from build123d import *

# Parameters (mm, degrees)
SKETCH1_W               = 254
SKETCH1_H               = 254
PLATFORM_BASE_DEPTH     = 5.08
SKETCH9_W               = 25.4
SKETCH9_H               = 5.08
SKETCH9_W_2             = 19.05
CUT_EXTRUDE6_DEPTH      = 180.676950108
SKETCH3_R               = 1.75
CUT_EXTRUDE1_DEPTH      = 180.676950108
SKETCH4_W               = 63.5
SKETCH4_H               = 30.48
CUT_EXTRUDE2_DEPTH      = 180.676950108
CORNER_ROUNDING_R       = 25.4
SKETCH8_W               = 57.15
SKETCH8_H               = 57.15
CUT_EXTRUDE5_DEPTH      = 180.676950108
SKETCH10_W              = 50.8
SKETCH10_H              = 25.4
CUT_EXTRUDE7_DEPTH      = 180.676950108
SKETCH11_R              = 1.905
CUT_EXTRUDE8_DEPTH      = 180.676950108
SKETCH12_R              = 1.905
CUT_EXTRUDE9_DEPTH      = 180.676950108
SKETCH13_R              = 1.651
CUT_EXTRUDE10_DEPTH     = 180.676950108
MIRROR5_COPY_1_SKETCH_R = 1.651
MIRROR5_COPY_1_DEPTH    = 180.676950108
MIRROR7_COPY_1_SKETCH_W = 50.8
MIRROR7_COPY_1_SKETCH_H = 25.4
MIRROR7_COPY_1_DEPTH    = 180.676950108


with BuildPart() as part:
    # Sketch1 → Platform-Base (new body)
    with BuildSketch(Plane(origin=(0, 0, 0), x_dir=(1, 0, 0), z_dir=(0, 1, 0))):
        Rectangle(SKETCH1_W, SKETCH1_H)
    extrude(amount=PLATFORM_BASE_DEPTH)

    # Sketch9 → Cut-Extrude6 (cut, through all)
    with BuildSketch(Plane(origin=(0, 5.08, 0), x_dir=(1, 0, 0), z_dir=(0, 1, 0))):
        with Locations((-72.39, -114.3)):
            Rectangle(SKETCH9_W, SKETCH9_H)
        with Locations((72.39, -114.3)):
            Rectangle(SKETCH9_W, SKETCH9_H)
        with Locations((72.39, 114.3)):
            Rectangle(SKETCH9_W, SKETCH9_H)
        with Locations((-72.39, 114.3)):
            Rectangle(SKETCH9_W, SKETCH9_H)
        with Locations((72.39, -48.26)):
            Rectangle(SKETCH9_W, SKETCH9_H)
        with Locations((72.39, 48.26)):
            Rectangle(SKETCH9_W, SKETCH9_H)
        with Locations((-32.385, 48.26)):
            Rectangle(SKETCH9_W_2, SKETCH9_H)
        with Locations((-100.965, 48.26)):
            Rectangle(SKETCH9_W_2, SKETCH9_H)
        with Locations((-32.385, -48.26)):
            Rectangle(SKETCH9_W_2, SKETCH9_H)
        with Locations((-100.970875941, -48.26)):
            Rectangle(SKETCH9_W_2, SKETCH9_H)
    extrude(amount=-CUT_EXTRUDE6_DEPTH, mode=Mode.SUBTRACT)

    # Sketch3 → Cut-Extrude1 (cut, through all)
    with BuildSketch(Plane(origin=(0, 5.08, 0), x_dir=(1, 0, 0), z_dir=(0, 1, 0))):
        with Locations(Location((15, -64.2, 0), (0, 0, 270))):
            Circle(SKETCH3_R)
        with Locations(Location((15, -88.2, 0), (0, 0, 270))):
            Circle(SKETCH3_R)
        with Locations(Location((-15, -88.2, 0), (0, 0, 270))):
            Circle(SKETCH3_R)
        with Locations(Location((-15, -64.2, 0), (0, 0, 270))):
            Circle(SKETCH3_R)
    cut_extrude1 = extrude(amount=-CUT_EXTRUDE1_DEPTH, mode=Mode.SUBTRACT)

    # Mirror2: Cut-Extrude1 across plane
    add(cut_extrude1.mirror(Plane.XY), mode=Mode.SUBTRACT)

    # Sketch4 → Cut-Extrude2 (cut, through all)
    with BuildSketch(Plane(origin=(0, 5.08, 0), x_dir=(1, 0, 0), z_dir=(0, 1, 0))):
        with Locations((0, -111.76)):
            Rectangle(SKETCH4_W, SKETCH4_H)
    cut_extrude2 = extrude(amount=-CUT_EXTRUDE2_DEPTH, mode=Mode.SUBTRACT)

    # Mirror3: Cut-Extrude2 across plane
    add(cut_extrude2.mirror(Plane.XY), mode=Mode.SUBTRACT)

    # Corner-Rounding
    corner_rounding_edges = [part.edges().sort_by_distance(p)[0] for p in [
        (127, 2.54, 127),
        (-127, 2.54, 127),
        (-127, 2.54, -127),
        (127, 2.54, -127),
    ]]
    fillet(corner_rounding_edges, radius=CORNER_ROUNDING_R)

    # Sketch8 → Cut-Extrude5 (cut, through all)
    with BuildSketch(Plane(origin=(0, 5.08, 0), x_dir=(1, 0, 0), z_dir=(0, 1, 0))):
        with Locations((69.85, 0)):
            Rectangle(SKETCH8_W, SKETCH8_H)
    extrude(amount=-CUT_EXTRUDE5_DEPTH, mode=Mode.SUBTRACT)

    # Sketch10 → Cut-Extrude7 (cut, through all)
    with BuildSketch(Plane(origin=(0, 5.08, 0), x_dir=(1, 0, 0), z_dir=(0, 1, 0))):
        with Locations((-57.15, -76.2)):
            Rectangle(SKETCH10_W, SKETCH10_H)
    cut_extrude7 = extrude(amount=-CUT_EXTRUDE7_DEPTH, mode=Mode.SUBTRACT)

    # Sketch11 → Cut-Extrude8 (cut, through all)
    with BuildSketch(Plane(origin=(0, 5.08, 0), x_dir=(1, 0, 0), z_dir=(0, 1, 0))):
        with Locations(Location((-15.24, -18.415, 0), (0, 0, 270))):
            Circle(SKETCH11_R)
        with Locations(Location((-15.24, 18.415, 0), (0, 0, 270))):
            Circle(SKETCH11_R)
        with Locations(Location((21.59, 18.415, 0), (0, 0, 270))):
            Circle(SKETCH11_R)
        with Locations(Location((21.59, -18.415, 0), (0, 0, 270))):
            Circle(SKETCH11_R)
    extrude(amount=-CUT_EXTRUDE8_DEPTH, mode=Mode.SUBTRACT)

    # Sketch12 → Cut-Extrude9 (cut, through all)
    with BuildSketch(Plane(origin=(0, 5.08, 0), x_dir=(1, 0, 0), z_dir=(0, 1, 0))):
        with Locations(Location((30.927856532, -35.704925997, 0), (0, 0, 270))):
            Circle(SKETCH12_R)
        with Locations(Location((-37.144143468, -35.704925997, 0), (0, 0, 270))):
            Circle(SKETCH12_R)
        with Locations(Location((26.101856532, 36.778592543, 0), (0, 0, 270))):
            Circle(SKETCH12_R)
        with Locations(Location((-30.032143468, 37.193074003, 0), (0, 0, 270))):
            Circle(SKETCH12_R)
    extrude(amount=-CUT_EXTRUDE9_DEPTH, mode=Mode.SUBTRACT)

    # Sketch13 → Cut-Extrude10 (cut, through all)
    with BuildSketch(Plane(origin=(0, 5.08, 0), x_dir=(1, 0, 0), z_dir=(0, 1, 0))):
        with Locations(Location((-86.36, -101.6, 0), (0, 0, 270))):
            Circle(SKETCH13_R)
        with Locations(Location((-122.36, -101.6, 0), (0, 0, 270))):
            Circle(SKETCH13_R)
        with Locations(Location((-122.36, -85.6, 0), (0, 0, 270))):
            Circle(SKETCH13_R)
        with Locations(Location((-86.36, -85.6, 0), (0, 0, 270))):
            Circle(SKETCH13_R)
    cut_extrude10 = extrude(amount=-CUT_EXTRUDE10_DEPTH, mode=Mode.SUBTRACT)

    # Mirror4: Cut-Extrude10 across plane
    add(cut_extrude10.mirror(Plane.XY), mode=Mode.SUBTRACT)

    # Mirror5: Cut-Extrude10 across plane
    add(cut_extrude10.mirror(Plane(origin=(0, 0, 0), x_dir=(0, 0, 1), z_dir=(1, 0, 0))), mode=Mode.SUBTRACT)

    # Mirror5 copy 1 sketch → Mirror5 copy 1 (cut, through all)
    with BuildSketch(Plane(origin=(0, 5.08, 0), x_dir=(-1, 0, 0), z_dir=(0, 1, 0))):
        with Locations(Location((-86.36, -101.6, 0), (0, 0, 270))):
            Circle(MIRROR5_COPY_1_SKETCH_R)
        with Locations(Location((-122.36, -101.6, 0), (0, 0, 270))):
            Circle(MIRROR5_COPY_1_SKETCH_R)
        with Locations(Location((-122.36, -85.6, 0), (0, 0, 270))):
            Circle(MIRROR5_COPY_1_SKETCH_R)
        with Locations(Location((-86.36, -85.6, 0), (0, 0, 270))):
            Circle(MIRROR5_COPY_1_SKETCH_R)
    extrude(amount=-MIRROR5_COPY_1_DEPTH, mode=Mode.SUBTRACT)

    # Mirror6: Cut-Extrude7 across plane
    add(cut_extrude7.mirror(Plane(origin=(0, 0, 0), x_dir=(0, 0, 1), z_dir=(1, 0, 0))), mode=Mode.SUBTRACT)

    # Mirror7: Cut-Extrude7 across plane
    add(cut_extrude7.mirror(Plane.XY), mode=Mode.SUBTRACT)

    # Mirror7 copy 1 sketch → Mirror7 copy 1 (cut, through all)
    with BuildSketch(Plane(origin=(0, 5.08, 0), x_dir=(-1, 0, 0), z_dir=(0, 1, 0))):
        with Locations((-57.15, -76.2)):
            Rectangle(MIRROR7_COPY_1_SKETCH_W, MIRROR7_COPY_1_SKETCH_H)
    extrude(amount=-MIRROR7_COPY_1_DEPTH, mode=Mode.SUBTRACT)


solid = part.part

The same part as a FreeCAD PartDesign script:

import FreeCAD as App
import Part
import Sketcher
from FreeCAD import Vector
Q = App.Units.Quantity


def edges_at(feature, points):
    """Names of the edges that pass closest to the given points."""
    edges = feature.Shape.Edges
    near = lambda p: min(range(len(edges)), key=lambda i: edges[i].distToShape(Part.Vertex(*p))[0])
    return sorted({f"Edge{near(p) + 1}" for p in points})


def add_polygon(sketch, points):
    """Adds a closed chain of lines whose ends are joined by coincident constraints."""
    first, n = sketch.GeometryCount, len(points)
    for a, b in zip(points, points[1:] + points[:1]):
        sketch.addGeometry(Part.LineSegment(App.Vector(*a, 0), App.Vector(*b, 0)), False)
    for i in range(n):
        sketch.addConstraint(Sketcher.Constraint("Coincident", first + i, 2, first + (i + 1) % n, 1))

doc = App.newDocument("Part")
body = doc.addObject("PartDesign::Body", "Body")

# Sketch on XZ plane
sketch1 = doc.addObject("Sketcher::SketchObject", "Sketch")
body.addObject(sketch1)
sketch1.AttachmentSupport = (doc.XZ_Plane, [""])
sketch1.MapMode = "FlatFace"
add_polygon(sketch1, [(-127, -127), (-127, 127), (127, 127), (127, -127)])  # lines 0-3
sketch1.addConstraint([
    Sketcher.Constraint("Vertical", 0),
    Sketcher.Constraint("Horizontal", 1),
    Sketcher.Constraint("Vertical", 2),
    Sketcher.Constraint("Horizontal", 3),
    Sketcher.Constraint("Symmetric", 0, 2, 2, 2, -1, 1),
    Sketcher.Constraint("Equal", 3, 0),
    Sketcher.Constraint("DistanceX", 1, 1, 1, 2, Q("10 in")),
])
pad1 = doc.addObject("PartDesign::Pad", "Pad")
body.addObject(pad1)
pad1.Profile = sketch1
pad1.Length = Q("0.2 in")
pad1.Reversed = True

# Sketch on XZ plane
sketch2 = doc.addObject("Sketcher::SketchObject", "Sketch001")
body.addObject(sketch2)
sketch2.AttachmentSupport = (doc.XZ_Plane, [""])
sketch2.MapMode = "FlatFace"
sketch2.AttachmentOffset = App.Placement(Vector(0, 0, -0.2 * 25.4), App.Rotation())
add_polygon(sketch2, [(-85, 112), (-85, 117), (-60, 117), (-60, 112)])  # lines 0-3
add_polygon(sketch2, [(60, 112), (60, 117), (85, 117), (85, 112)])  # lines 4-7
add_polygon(sketch2, [(60, -117), (60, -112), (85, -112), (85, -117)])  # lines 8-11
add_polygon(sketch2, [(-85, -117), (-85, -112), (-60, -112), (-60, -117)])  # lines 12-15
add_polygon(sketch2, [(60, 46), (60, 51), (85, 51), (85, 46)])  # lines 16-19
add_polygon(sketch2, [(60, -51), (60, -46), (85, -46), (85, -51)])  # lines 20-23
add_polygon(sketch2, [(-42, -51), (-42, -46), (-23, -46), (-23, -51)])  # lines 24-27
add_polygon(sketch2, [(-110, -51), (-110, -46), (-91, -46), (-91, -51)])  # lines 28-31
add_polygon(sketch2, [(-42, 46), (-42, 51), (-23, 51), (-23, 46)])  # lines 32-35
add_polygon(sketch2, [(-110, 46), (-110, 51), (-91, 51), (-91, 46)])  # lines 36-39
sketch2.addConstraint([
    Sketcher.Constraint("Vertical", 0),
    Sketcher.Constraint("Horizontal", 1),
    Sketcher.Constraint("Vertical", 2),
    Sketcher.Constraint("Horizontal", 3),
    Sketcher.Constraint("Vertical", 4),
    Sketcher.Constraint("Horizontal", 5),
    Sketcher.Constraint("Vertical", 6),
    Sketcher.Constraint("Horizontal", 7),
    Sketcher.Constraint("Vertical", 8),
    Sketcher.Constraint("Horizontal", 9),
    Sketcher.Constraint("Vertical", 10),
    Sketcher.Constraint("Horizontal", 11),
    Sketcher.Constraint("Vertical", 12),
    Sketcher.Constraint("Horizontal", 13),
    Sketcher.Constraint("Vertical", 14),
    Sketcher.Constraint("Horizontal", 15),
    Sketcher.Constraint("Vertical", 16),
    Sketcher.Constraint("Horizontal", 17),
    Sketcher.Constraint("Vertical", 18),
    Sketcher.Constraint("Horizontal", 19),
    Sketcher.Constraint("Vertical", 20),
    Sketcher.Constraint("Horizontal", 21),
    Sketcher.Constraint("Vertical", 22),
    Sketcher.Constraint("Horizontal", 23),
    Sketcher.Constraint("Vertical", 24),
    Sketcher.Constraint("Horizontal", 25),
    Sketcher.Constraint("Vertical", 26),
    Sketcher.Constraint("Horizontal", 27),
    Sketcher.Constraint("Vertical", 28),
    Sketcher.Constraint("Horizontal", 29),
    Sketcher.Constraint("Vertical", 30),
    Sketcher.Constraint("Horizontal", 31),
    Sketcher.Constraint("Vertical", 32),
    Sketcher.Constraint("Horizontal", 33),
    Sketcher.Constraint("Vertical", 34),
    Sketcher.Constraint("Horizontal", 35),
    Sketcher.Constraint("Vertical", 36),
    Sketcher.Constraint("Horizontal", 37),
    Sketcher.Constraint("Vertical", 38),
    Sketcher.Constraint("Horizontal", 39),
    Sketcher.Constraint("Symmetric", 2, 2, 8, 2, -1, 1),
    Sketcher.Constraint("Symmetric", 0, 2, 10, 2, -1, 1),
    Sketcher.Constraint("Symmetric", 6, 2, 12, 2, -1, 1),
    Sketcher.Constraint("Symmetric", 4, 2, 14, 2, -1, 1),
    Sketcher.Constraint("Symmetric", 1, 2, 4, 2, -2),
    Sketcher.Constraint("Symmetric", 3, 2, 6, 2, -2),
    Sketcher.Constraint("Symmetric", 19, 2, 20, 2, -1),
    Sketcher.Constraint("Symmetric", 17, 2, 22, 2, -1),
    Sketcher.Constraint("Symmetric", 27, 2, 32, 2, -1),
    Sketcher.Constraint("Symmetric", 25, 2, 34, 2, -1),
    Sketcher.Constraint("Horizontal", 21, 2, 24, 2),
    Sketcher.Constraint("Horizontal", 23, 2, 26, 2),
    Sketcher.Constraint("Horizontal", 25, 2, 28, 2),
    Sketcher.Constraint("Horizontal", 27, 2, 30, 2),
    Sketcher.Constraint("Horizontal", 33, 2, 36, 2),
    Sketcher.Constraint("Horizontal", 35, 2, 38, 2),
    Sketcher.Constraint("Vertical", 11, 2, 16, 2),
    Sketcher.Constraint("Vertical", 10, 2, 17, 2),
    Sketcher.Constraint("Equal", 27, 29),
    Sketcher.Constraint("Equal", 35, 37),
    Sketcher.Constraint("Equal", 14, 16),
    Sketcher.Constraint("DistanceX", 1, 1, 1, 2, Q("1 in")),
    Sketcher.Constraint("DistanceY", 0, 1, 0, 2, Q("0.2 in")),
    Sketcher.Constraint("DistanceY", -1, 1, 16, 2, Q("2 in")),
    Sketcher.Constraint("DistanceY", 8, 2, 4, 2, Q("9 in")),
    Sketcher.Constraint("DistanceX", 24, 2, 20, 2, Q("4 in")),
    Sketcher.Constraint("DistanceX", 28, 2, 12, 2, Q("1 in")),
    Sketcher.Constraint("DistanceX", 25, 1, 25, 2, Q("0.75 in")),
    Sketcher.Constraint("DistanceX", 25, 2, -1, 1, Q("0.9 in")),
    Sketcher.Constraint("DistanceX", 36, 2, -1, 1, 110.495876),
])
pocket1 = doc.addObject("PartDesign::Pocket", "Pocket")
body.addObject(pocket1)
pocket1.Profile = sketch2
pocket1.Type = "ThroughAll"
pocket1.Reversed = True

# Sketch on XZ plane
sketch3 = doc.addObject("Sketcher::SketchObject", "Sketch002")
body.addObject(sketch3)
sketch3.AttachmentSupport = (doc.XZ_Plane, [""])
sketch3.MapMode = "FlatFace"
sketch3.AttachmentOffset = App.Placement(Vector(0, 0, -0.2 * 25.4), App.Rotation())
sketch3.addGeometry([
    Part.Circle(Vector(15, 64.2, 0), Vector(0, 0, 1), 1.8),
    Part.Circle(Vector(15, 88.2, 0), Vector(0, 0, 1), 1.8),
    Part.Circle(Vector(-15, 88.2, 0), Vector(0, 0, 1), 1.8),
    Part.Circle(Vector(-15, 64.2, 0), Vector(0, 0, 1), 1.8),
], False)
sketch3.addConstraint([
    Sketcher.Constraint("Equal", 0, 1),
    Sketcher.Constraint("Equal", 1, 2),
    Sketcher.Constraint("Equal", 2, 3),
    Sketcher.Constraint("Symmetric", 1, 3, 2, 3, -2),
    Sketcher.Constraint("Symmetric", 0, 3, 3, 3, -2),
    Sketcher.Constraint("Vertical", 0, 3, 1, 3),
    Sketcher.Constraint("Diameter", 0, 3.5),
    Sketcher.Constraint("DistanceX", -1, 1, 0, 3, 15.0),
    Sketcher.Constraint("DistanceY", -1, 1, 0, 3, 64.2),
    Sketcher.Constraint("DistanceY", -1, 1, 1, 3, 88.2),
])
pocket2 = doc.addObject("PartDesign::Pocket", "Pocket001")
body.addObject(pocket2)
pocket2.Profile = sketch3
pocket2.Type = "ThroughAll"
pocket2.Reversed = True
doc.recompute()

mirrored = doc.addObject("PartDesign::Mirrored", "Mirrored")
body.addObject(mirrored)
mirrored.Originals = [pocket2]
mirrored.MirrorPlane = (doc.XY_Plane, [""])
body.Tip = mirrored

# Sketch on XZ plane
sketch4 = doc.addObject("Sketcher::SketchObject", "Sketch003")
body.addObject(sketch4)
sketch4.AttachmentSupport = (doc.XZ_Plane, [""])
sketch4.MapMode = "FlatFace"
sketch4.AttachmentOffset = App.Placement(Vector(0, 0, -0.2 * 25.4), App.Rotation())
add_polygon(sketch4, [(-32, 97), (-32, 127), (32, 127), (32, 97)])  # lines 0-3
sketch4.addConstraint([
    Sketcher.Constraint("Vertical", 0),
    Sketcher.Constraint("Horizontal", 1),
    Sketcher.Constraint("Vertical", 2),
    Sketcher.Constraint("Horizontal", 3),
    Sketcher.Constraint("DistanceX", 1, 1, 1, 2, Q("2.5 in")),
    Sketcher.Constraint("DistanceY", 0, 1, 0, 2, Q("1.2 in")),
    Sketcher.Constraint("DistanceY", -1, 1, 0, 2, Q("5 in")),
    Sketcher.Constraint("DistanceX", 0, 2, -1, 1, Q("1.25 in")),
])
pocket3 = doc.addObject("PartDesign::Pocket", "Pocket002")
body.addObject(pocket3)
pocket3.Profile = sketch4
pocket3.Type = "ThroughAll"
pocket3.Reversed = True
doc.recompute()

mirrored2 = doc.addObject("PartDesign::Mirrored", "Mirrored001")
body.addObject(mirrored2)
mirrored2.Originals = [pocket3]
mirrored2.MirrorPlane = (doc.XY_Plane, [""])
body.Tip = mirrored2
doc.recompute()

fillet = doc.addObject("PartDesign::Fillet", "Fillet")
body.addObject(fillet)
fillet.Base = (mirrored2, edges_at(mirrored2, [
    (127, 2.54, 127),
    (-127, 2.54, 127),
    (-127, 2.54, -127),
    (127, 2.54, -127),
]))
fillet.Radius = Q("1 in")

# Sketch on XZ plane
sketch5 = doc.addObject("Sketcher::SketchObject", "Sketch004")
body.addObject(sketch5)
sketch5.AttachmentSupport = (doc.XZ_Plane, [""])
sketch5.MapMode = "FlatFace"
sketch5.AttachmentOffset = App.Placement(Vector(0, 0, -0.2 * 25.4), App.Rotation())
add_polygon(sketch5, [(41, -29), (41, 29), (98, 29), (98, -29)])  # lines 0-3
sketch5.addConstraint([
    Sketcher.Constraint("Vertical", 0),
    Sketcher.Constraint("Horizontal", 1),
    Sketcher.Constraint("Vertical", 2),
    Sketcher.Constraint("Horizontal", 3),
    Sketcher.Constraint("Equal", 3, 0),
    Sketcher.Constraint("DistanceX", 1, 1, 1, 2, Q("2.25 in")),
    Sketcher.Constraint("DistanceX", -1, 1, 0, 2, Q("1.625 in")),
    Sketcher.Constraint("DistanceY", -1, 1, 0, 2, Q("1.125 in")),
])
pocket4 = doc.addObject("PartDesign::Pocket", "Pocket003")
body.addObject(pocket4)
pocket4.Profile = sketch5
pocket4.Type = "ThroughAll"
pocket4.Reversed = True

# Sketch on XZ plane
sketch6 = doc.addObject("Sketcher::SketchObject", "Sketch005")
body.addObject(sketch6)
sketch6.AttachmentSupport = (doc.XZ_Plane, [""])
sketch6.MapMode = "FlatFace"
sketch6.AttachmentOffset = App.Placement(Vector(0, 0, -0.2 * 25.4), App.Rotation())
add_polygon(sketch6, [(-83, 64), (-83, 89), (-32, 89), (-32, 64)])  # lines 0-3
sketch6.addConstraint([
    Sketcher.Constraint("Vertical", 0),
    Sketcher.Constraint("Horizontal", 1),
    Sketcher.Constraint("Vertical", 2),
    Sketcher.Constraint("Horizontal", 3),
    Sketcher.Constraint("DistanceX", 1, 1, 1, 2, Q("2 in")),
    Sketcher.Constraint("DistanceY", 0, 1, 0, 2, Q("1 in")),
    Sketcher.Constraint("DistanceY", -1, 1, 0, 2, Q("3.5 in")),
    Sketcher.Constraint("DistanceX", 0, 2, -1, 1, Q("3.25 in")),
])
pocket5 = doc.addObject("PartDesign::Pocket", "Pocket004")
body.addObject(pocket5)
pocket5.Profile = sketch6
pocket5.Type = "ThroughAll"
pocket5.Reversed = True

# Sketch on XZ plane
sketch7 = doc.addObject("Sketcher::SketchObject", "Sketch006")
body.addObject(sketch7)
sketch7.AttachmentSupport = (doc.XZ_Plane, [""])
sketch7.MapMode = "FlatFace"
sketch7.AttachmentOffset = App.Placement(Vector(0, 0, -0.2 * 25.4), App.Rotation())
sketch7.addGeometry([
    Part.Circle(Vector(-15.2, 18.4, 0), Vector(0, 0, 1), 1.9),
    Part.Circle(Vector(-15.2, -18.4, 0), Vector(0, 0, 1), 1.9),
    Part.Circle(Vector(21.6, -18.4, 0), Vector(0, 0, 1), 1.9),
    Part.Circle(Vector(21.6, 18.4, 0), Vector(0, 0, 1), 1.9),
], False)
sketch7.addConstraint([
    Sketcher.Constraint("Equal", 0, 1),
    Sketcher.Constraint("Equal", 1, 2),
    Sketcher.Constraint("Equal", 2, 3),
    Sketcher.Constraint("Symmetric", 0, 3, 1, 3, -1),
    Sketcher.Constraint("Symmetric", 2, 3, 3, 3, -1),
    Sketcher.Constraint("Horizontal", 1, 3, 2, 3),
    Sketcher.Constraint("Diameter", 0, Q("0.15 in")),
    Sketcher.Constraint("DistanceX", 0, 3, -1, 1, Q("0.6 in")),
    Sketcher.Constraint("DistanceX", -1, 1, 2, 3, Q("0.85 in")),
    Sketcher.Constraint("DistanceY", 1, 3, 0, 3, Q("1.45 in")),
])
pocket6 = doc.addObject("PartDesign::Pocket", "Pocket005")
body.addObject(pocket6)
pocket6.Profile = sketch7
pocket6.Type = "ThroughAll"
pocket6.Reversed = True

# Sketch on XZ plane
sketch8 = doc.addObject("Sketcher::SketchObject", "Sketch007")
body.addObject(sketch8)
sketch8.AttachmentSupport = (doc.XZ_Plane, [""])
sketch8.MapMode = "FlatFace"
sketch8.AttachmentOffset = App.Placement(Vector(0, 0, -0.2 * 25.4), App.Rotation())
sketch8.addGeometry([
    Part.Circle(Vector(30.9, 35.7, 0), Vector(0, 0, 1), 1.9),
    Part.Circle(Vector(-37.1, 35.7, 0), Vector(0, 0, 1), 1.9),
    Part.Circle(Vector(26.1, -36.8, 0), Vector(0, 0, 1), 1.9),
    Part.Circle(Vector(-30, -37.2, 0), Vector(0, 0, 1), 1.9),
], False)
sketch8.addConstraint([
    Sketcher.Constraint("Equal", 0, 1),
    Sketcher.Constraint("Equal", 1, 2),
    Sketcher.Constraint("Equal", 2, 3),
    Sketcher.Constraint("Horizontal", 0, 3, 1, 3),
    Sketcher.Constraint("Diameter", 0, Q("0.15 in")),
    Sketcher.Constraint("DistanceX", 3, 3, 0, 3, Q("2.4 in")),
    Sketcher.Constraint("DistanceX", 1, 3, 0, 3, Q("2.68 in")),
    Sketcher.Constraint("DistanceX", 2, 3, 0, 3, Q("0.19 in")),
    Sketcher.Constraint("DistanceY", 3, 3, 1, 3, Q("2.87 in")),
    Sketcher.Constraint("DistanceY", 2, 3, 0, 3, 72.483519),
    Sketcher.Constraint("DistanceX", -1, 1, 0, 3, 30.927857),
    Sketcher.Constraint("DistanceY", -1, 1, 0, 3, 35.704926),
])
pocket7 = doc.addObject("PartDesign::Pocket", "Pocket006")
body.addObject(pocket7)
pocket7.Profile = sketch8
pocket7.Type = "ThroughAll"
pocket7.Reversed = True

# Sketch on XZ plane
sketch9 = doc.addObject("Sketcher::SketchObject", "Sketch008")
body.addObject(sketch9)
sketch9.AttachmentSupport = (doc.XZ_Plane, [""])
sketch9.MapMode = "FlatFace"
sketch9.AttachmentOffset = App.Placement(Vector(0, 0, -0.2 * 25.4), App.Rotation())
sketch9.addGeometry([
    Part.Circle(Vector(-86.4, 101.6, 0), Vector(0, 0, 1), 1.7),
    Part.Circle(Vector(-122.4, 101.6, 0), Vector(0, 0, 1), 1.7),
    Part.Circle(Vector(-122.4, 85.6, 0), Vector(0, 0, 1), 1.7),
    Part.Circle(Vector(-86.4, 85.6, 0), Vector(0, 0, 1), 1.7),
], False)
sketch9.addConstraint([
    Sketcher.Constraint("Equal", 0, 1),
    Sketcher.Constraint("Equal", 1, 2),
    Sketcher.Constraint("Equal", 2, 3),
    Sketcher.Constraint("Horizontal", 0, 3, 1, 3),
    Sketcher.Constraint("Horizontal", 2, 3, 3, 3),
    Sketcher.Constraint("Vertical", 1, 3, 2, 3),
    Sketcher.Constraint("Vertical", 0, 3, 3, 3),
    Sketcher.Constraint("Diameter", 0, Q("0.13 in")),
    Sketcher.Constraint("DistanceY", -1, 1, 0, 3, Q("4 in")),
    Sketcher.Constraint("DistanceX", 0, 3, -1, 1, Q("3.4 in")),
    Sketcher.Constraint("DistanceX", 1, 3, -1, 1, 122.36),
    Sketcher.Constraint("DistanceY", -1, 1, 2, 3, 85.6),
])
pocket8 = doc.addObject("PartDesign::Pocket", "Pocket007")
body.addObject(pocket8)
pocket8.Profile = sketch9
pocket8.Type = "ThroughAll"
pocket8.Reversed = True
doc.recompute()

mirrored3 = doc.addObject("PartDesign::Mirrored", "Mirrored002")
body.addObject(mirrored3)
mirrored3.Originals = [pocket8]
mirrored3.MirrorPlane = (doc.XY_Plane, [""])
body.Tip = mirrored3
doc.recompute()

mirrored4 = doc.addObject("PartDesign::Mirrored", "Mirrored003")
body.addObject(mirrored4)
mirrored4.Originals = [pocket8]
mirrored4.MirrorPlane = (doc.YZ_Plane, [""])
body.Tip = mirrored4

# Sketch on XZ plane
sketch10 = doc.addObject("Sketcher::SketchObject", "Sketch009")
body.addObject(sketch10)
sketch10.AttachmentSupport = (doc.XZ_Plane, [""])
sketch10.MapMode = "FlatFace"
sketch10.AttachmentOffset = App.Placement(Vector(0, 0, -0.2 * 25.4), App.Rotation())
sketch10.addGeometry([
    Part.Circle(Vector(86.4, -101.6, 0), Vector(0, 0, 1), 1.7),
    Part.Circle(Vector(122.4, -101.6, 0), Vector(0, 0, 1), 1.7),
    Part.Circle(Vector(122.4, -85.6, 0), Vector(0, 0, 1), 1.7),
    Part.Circle(Vector(86.4, -85.6, 0), Vector(0, 0, 1), 1.7),
], False)
sketch10.addConstraint([
    Sketcher.Constraint("Equal", 0, 1),
    Sketcher.Constraint("Equal", 1, 2),
    Sketcher.Constraint("Equal", 2, 3),
    Sketcher.Constraint("Horizontal", 0, 3, 1, 3),
    Sketcher.Constraint("Horizontal", 2, 3, 3, 3),
    Sketcher.Constraint("Vertical", 1, 3, 2, 3),
    Sketcher.Constraint("Vertical", 0, 3, 3, 3),
    Sketcher.Constraint("Diameter", 0, Q("0.13 in")),
    Sketcher.Constraint("DistanceY", 0, 3, -1, 1, Q("4 in")),
    Sketcher.Constraint("DistanceX", -1, 1, 0, 3, Q("3.4 in")),
    Sketcher.Constraint("DistanceX", -1, 1, 1, 3, 122.36),
    Sketcher.Constraint("DistanceY", 2, 3, -1, 1, 85.6),
])
pocket9 = doc.addObject("PartDesign::Pocket", "Pocket008")
body.addObject(pocket9)
pocket9.Profile = sketch10
pocket9.Type = "ThroughAll"
pocket9.Reversed = True
doc.recompute()

mirrored5 = doc.addObject("PartDesign::Mirrored", "Mirrored004")
body.addObject(mirrored5)
mirrored5.Originals = [pocket5]
mirrored5.MirrorPlane = (doc.YZ_Plane, [""])
body.Tip = mirrored5
doc.recompute()

mirrored6 = doc.addObject("PartDesign::Mirrored", "Mirrored005")
body.addObject(mirrored6)
mirrored6.Originals = [pocket5]
mirrored6.MirrorPlane = (doc.XY_Plane, [""])
body.Tip = mirrored6

# Sketch on XZ plane
sketch11 = doc.addObject("Sketcher::SketchObject", "Sketch010")
body.addObject(sketch11)
sketch11.AttachmentSupport = (doc.XZ_Plane, [""])
sketch11.MapMode = "FlatFace"
sketch11.AttachmentOffset = App.Placement(Vector(0, 0, -0.2 * 25.4), App.Rotation())
add_polygon(sketch11, [(83, -64), (83, -89), (32, -89), (32, -64)])  # lines 0-3
sketch11.addConstraint([
    Sketcher.Constraint("Vertical", 0),
    Sketcher.Constraint("Horizontal", 1),
    Sketcher.Constraint("Vertical", 2),
    Sketcher.Constraint("Horizontal", 3),
    Sketcher.Constraint("DistanceX", 1, 2, 1, 1, Q("2 in")),
    Sketcher.Constraint("DistanceY", 0, 2, 0, 1, Q("1 in")),
    Sketcher.Constraint("DistanceY", 0, 2, -1, 1, Q("3.5 in")),
    Sketcher.Constraint("DistanceX", -1, 1, 0, 2, Q("3.25 in")),
])
pocket10 = doc.addObject("PartDesign::Pocket", "Pocket009")
body.addObject(pocket10)
pocket10.Profile = sketch11
pocket10.Type = "ThroughAll"
pocket10.Reversed = True

doc.recompute()
